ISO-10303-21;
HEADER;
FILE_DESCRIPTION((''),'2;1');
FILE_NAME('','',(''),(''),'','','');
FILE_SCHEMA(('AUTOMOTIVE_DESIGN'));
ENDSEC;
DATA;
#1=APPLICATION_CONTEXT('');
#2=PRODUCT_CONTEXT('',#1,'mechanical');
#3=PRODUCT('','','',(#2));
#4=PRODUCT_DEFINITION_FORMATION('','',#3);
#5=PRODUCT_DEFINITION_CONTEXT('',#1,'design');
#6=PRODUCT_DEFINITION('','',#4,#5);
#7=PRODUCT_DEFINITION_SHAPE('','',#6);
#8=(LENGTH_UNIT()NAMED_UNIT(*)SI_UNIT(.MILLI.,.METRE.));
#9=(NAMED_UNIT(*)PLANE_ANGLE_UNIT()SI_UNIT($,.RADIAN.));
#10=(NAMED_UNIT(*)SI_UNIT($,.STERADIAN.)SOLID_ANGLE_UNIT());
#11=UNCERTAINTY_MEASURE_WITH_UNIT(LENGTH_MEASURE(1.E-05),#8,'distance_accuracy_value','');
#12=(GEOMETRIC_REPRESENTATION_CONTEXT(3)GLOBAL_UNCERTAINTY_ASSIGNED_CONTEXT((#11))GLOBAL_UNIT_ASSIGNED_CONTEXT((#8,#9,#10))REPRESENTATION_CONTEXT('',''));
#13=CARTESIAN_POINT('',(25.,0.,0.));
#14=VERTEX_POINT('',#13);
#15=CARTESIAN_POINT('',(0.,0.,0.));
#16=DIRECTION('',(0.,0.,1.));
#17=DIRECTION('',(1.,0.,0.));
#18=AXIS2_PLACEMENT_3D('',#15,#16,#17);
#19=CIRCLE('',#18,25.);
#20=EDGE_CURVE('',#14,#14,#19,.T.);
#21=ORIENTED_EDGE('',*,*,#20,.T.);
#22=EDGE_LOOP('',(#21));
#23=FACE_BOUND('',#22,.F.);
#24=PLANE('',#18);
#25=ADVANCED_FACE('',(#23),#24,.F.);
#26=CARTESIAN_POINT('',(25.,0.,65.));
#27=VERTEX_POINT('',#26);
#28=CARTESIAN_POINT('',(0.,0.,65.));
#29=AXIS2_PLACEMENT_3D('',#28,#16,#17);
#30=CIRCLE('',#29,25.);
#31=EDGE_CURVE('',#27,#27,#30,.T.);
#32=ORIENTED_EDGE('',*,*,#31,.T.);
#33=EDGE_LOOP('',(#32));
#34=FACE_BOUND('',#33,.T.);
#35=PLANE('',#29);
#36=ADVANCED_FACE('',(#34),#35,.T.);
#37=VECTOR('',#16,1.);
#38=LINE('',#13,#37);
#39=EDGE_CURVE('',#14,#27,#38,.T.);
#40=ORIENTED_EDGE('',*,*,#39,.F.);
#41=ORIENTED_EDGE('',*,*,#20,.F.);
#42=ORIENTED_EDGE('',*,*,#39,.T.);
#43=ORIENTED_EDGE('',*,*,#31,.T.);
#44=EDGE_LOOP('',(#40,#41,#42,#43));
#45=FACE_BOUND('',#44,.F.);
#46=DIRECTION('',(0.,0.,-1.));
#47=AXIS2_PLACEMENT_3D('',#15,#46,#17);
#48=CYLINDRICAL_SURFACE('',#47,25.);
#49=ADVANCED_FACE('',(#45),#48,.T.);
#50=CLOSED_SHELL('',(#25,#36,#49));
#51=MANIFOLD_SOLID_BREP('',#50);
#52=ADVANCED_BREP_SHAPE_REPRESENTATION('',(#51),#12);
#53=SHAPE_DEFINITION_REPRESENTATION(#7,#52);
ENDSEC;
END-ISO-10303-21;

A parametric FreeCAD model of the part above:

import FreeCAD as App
import Part
import Sketcher

V = App.Vector

doc = App.newDocument("Part")
body = doc.addObject("PartDesign::Body", "Body")

# Sketch on XY plane
sketch1 = body.newObject("Sketcher::SketchObject", "Sketch")
sketch1.AttachmentSupport = (doc.getObject("XY_Plane"), [""])
sketch1.MapMode = "FlatFace"
sketch1.addGeometry(Part.Circle(V(0, 0, 0), V(0, 0, 1), 25), False)
sketch1.addConstraint(Sketcher.Constraint("Coincident", 0, 3, -1, 1))
sketch1.addConstraint(Sketcher.Constraint("Diameter", 0, 50.0))
pad1 = body.newObject("PartDesign::Pad", "Pad")
pad1.Profile = sketch1
pad1.Length = 65

doc.recompute()
